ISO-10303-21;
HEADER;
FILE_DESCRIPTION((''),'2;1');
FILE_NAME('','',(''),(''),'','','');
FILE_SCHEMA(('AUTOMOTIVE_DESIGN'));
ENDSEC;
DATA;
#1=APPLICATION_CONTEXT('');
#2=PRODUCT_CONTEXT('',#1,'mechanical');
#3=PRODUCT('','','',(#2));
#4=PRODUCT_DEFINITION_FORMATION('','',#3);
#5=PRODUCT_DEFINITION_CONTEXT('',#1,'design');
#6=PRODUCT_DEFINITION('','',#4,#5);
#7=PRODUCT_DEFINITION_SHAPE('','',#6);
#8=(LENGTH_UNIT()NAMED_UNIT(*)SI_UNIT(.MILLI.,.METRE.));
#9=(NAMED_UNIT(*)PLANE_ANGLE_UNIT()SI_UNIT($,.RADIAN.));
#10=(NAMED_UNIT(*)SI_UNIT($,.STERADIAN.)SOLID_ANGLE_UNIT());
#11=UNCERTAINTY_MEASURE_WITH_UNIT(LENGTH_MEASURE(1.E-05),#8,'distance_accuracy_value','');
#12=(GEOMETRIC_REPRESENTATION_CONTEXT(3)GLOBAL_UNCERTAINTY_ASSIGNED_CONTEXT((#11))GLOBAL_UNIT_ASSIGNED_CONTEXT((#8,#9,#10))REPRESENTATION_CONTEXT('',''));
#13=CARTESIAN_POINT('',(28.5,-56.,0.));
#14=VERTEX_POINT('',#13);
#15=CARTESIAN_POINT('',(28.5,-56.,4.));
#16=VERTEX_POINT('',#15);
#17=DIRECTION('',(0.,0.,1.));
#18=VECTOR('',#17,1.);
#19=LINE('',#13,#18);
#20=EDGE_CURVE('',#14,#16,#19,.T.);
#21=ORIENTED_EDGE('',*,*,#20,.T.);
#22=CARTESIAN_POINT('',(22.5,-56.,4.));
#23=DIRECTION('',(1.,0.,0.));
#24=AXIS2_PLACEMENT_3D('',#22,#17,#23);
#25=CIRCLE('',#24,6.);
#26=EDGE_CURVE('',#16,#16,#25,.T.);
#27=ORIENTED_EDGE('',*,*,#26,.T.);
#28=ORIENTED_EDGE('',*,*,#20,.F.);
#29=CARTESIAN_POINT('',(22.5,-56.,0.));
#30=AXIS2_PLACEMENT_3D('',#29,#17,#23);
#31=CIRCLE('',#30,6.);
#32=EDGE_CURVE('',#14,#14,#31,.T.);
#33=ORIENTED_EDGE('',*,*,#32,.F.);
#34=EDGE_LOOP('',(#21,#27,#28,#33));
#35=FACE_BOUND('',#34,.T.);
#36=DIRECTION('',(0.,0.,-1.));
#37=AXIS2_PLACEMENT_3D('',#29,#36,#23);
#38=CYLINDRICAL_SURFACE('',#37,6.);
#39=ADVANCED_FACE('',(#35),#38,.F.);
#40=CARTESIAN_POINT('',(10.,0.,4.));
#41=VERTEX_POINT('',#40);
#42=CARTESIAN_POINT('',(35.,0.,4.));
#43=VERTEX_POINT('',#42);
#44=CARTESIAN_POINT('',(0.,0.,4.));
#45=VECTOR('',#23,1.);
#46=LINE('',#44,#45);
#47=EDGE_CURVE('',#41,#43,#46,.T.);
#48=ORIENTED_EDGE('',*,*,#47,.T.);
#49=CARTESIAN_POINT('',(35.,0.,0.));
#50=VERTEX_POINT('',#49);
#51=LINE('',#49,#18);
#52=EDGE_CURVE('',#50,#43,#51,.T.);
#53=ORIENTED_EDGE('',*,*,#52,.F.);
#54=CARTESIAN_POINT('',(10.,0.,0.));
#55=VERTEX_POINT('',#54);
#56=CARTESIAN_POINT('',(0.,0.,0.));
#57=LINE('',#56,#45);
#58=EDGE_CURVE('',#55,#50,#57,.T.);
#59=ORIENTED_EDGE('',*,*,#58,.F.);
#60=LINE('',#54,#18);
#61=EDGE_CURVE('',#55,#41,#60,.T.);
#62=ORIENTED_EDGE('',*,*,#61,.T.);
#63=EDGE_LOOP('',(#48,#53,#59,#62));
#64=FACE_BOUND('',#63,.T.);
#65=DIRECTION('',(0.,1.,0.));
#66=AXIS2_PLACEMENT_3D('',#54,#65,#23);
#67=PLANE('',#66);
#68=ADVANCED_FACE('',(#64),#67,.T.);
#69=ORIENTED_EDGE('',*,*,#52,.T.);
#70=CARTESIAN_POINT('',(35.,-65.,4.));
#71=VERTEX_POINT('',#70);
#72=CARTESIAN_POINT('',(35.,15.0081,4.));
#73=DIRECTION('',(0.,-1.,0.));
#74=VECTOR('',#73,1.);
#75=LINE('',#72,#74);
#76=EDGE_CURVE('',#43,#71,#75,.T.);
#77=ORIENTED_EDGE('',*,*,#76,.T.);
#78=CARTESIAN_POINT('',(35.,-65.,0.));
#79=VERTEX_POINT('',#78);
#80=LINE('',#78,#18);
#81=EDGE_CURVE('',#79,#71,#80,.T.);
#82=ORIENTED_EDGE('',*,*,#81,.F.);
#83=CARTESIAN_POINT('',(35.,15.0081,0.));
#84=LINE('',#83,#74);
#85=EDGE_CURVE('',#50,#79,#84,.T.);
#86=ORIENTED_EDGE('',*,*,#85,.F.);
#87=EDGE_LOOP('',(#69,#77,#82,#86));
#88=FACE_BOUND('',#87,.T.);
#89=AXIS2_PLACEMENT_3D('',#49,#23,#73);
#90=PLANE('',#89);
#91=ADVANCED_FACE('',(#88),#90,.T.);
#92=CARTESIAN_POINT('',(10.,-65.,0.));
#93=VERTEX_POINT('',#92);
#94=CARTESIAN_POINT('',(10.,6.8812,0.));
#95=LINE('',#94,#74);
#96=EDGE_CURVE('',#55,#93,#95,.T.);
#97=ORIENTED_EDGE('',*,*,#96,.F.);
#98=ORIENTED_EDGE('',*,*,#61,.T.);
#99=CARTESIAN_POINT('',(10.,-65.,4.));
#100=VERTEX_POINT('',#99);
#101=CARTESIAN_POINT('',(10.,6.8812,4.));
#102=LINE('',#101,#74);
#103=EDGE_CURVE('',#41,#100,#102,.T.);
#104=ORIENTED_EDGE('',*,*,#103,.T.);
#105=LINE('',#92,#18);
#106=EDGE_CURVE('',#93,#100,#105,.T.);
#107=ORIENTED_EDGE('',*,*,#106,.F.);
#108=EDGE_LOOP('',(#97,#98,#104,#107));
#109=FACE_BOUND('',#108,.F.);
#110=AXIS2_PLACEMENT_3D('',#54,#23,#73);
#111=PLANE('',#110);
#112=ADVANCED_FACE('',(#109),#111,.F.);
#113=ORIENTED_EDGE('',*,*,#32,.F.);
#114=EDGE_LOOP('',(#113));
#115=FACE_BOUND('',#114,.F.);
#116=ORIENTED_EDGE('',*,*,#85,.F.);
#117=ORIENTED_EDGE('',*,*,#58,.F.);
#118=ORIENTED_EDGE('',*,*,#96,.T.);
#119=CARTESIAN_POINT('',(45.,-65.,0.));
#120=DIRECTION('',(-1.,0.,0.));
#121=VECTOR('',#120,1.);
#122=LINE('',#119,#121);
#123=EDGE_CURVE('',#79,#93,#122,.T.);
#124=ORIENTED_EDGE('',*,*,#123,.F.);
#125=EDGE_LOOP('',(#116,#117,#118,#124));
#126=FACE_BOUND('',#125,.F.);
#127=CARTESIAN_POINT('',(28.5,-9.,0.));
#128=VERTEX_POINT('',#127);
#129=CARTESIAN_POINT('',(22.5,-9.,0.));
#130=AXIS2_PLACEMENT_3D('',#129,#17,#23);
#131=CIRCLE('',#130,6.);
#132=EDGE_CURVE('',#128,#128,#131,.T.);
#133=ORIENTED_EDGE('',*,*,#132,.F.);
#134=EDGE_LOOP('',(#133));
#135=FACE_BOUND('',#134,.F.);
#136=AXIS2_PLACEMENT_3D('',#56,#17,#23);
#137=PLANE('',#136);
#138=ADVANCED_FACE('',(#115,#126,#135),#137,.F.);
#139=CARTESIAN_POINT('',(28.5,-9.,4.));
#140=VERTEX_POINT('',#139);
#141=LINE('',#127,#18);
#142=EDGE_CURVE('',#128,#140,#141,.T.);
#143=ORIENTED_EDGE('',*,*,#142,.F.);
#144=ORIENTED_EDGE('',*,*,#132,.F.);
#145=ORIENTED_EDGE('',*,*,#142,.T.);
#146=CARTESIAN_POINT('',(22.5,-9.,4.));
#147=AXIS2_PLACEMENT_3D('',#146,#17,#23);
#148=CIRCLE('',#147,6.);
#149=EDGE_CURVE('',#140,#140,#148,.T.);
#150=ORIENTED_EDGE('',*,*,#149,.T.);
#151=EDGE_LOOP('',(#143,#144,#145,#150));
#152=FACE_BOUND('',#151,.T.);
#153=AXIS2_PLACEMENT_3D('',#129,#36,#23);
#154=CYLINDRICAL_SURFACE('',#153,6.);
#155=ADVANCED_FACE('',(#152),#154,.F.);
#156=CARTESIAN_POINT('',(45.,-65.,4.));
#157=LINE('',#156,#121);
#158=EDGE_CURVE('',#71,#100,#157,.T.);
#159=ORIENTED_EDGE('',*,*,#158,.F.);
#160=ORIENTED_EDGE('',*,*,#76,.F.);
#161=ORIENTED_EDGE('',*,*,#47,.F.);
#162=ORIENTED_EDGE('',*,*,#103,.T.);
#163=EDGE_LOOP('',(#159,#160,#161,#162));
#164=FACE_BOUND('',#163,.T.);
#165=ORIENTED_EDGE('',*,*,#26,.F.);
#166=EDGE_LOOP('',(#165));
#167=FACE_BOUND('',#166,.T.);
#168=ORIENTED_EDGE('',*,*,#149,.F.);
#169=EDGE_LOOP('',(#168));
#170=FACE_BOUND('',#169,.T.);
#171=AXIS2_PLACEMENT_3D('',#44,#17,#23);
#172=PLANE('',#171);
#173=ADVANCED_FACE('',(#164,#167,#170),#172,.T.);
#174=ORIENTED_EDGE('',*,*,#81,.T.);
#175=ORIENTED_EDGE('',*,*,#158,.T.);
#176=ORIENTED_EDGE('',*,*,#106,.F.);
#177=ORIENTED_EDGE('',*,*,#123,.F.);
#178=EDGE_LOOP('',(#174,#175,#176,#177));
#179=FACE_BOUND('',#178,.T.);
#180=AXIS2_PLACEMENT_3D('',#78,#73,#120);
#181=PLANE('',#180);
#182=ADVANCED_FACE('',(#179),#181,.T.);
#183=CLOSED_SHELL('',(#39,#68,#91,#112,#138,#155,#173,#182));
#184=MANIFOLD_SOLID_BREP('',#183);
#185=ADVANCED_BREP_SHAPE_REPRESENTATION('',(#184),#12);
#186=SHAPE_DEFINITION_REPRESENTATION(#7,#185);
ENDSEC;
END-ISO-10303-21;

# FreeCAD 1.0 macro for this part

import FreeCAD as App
import Part
import Sketcher
Q = App.Units.Quantity

doc = App.newDocument("Part")
params = doc.addObject("Spreadsheet::Sheet", "Params")
for row, (alias, value) in enumerate([
    ("sketch1_diameter", "12 mm"),
    ("sketch1_height", "65 mm"),
    ("sketch1_width", "25 mm"),
    ("pad1_length", "4 mm"),
], start=1):
    params.set(f"A{row}", alias)
    params.set(f"B{row}", "=" + value)
    params.setAlias(f"B{row}", alias)

body = doc.addObject("PartDesign::Body", "Body")

# Sketch on XY plane
sketch1 = body.newObject("Sketcher::SketchObject", "Sketch")
sketch1.AttachmentSupport = (doc.getObject("XY_Plane"), [""])
sketch1.MapMode = "FlatFace"
sketch1.addGeometry(Part.LineSegment(App.Vector(35, 0, 0), App.Vector(10, 0, 0)), False)
sketch1.addGeometry(Part.LineSegment(App.Vector(10, 0, 0), App.Vector(10, -65, 0)), False)
sketch1.addGeometry(Part.LineSegment(App.Vector(10, -65, 0), App.Vector(35, -65, 0)), False)
sketch1.addGeometry(Part.LineSegment(App.Vector(35, -65, 0), App.Vector(35, 0, 0)), False)
sketch1.addGeometry(Part.Circle(App.Vector(22.5, -56, 0), App.Vector(0, 0, 1), 6), False)
sketch1.addGeometry(Part.Circle(App.Vector(22.5, -9, 0), App.Vector(0, 0, 1), 6), False)
sketch1.addConstraint(Sketcher.Constraint("Coincident", 0, 2, 1, 1))
sketch1.addConstraint(Sketcher.Constraint("Coincident", 1, 2, 2, 1))
sketch1.addConstraint(Sketcher.Constraint("Coincident", 2, 2, 3, 1))
sketch1.addConstraint(Sketcher.Constraint("Coincident", 3, 2, 0, 1))
sketch1.addConstraint(Sketcher.Constraint("Horizontal", 0))
sketch1.addConstraint(Sketcher.Constraint("Vertical", 1))
sketch1.addConstraint(Sketcher.Constraint("Horizontal", 2))
sketch1.addConstraint(Sketcher.Constraint("Vertical", 3))
sketch1.addConstraint(Sketcher.Constraint("Equal", 4, 5))
sketch1.addConstraint(Sketcher.Constraint("PointOnObject", 0, 2, -1))
sketch1.addConstraint(Sketcher.Constraint("Vertical", 4, 3, 5, 3))
sketch1.addConstraint(Sketcher.Constraint("Diameter", 4, Q("12 mm")))
sketch1.addConstraint(Sketcher.Constraint("DistanceY", 1, 2, 1, 1, Q("65 mm")))
sketch1.addConstraint(Sketcher.Constraint("DistanceY", 5, 3, -1, 1, Q("9 mm")))
sketch1.addConstraint(Sketcher.Constraint("DistanceX", -1, 1, 0, 2, Q("10 mm")))
sketch1.addConstraint(Sketcher.Constraint("DistanceY", 1, 2, 4, 3, Q("9 mm")))
sketch1.addConstraint(Sketcher.Constraint("DistanceX", -1, 1, 4, 3, Q("22.5 mm")))
sketch1.addConstraint(Sketcher.Constraint("DistanceX", 0, 2, 0, 1, Q("25 mm")))
sketch1.setExpression("Constraints[11]", "Params.sketch1_diameter")
sketch1.setExpression("Constraints[12]", "Params.sketch1_height")
sketch1.setExpression("Constraints[17]", "Params.sketch1_width")
pad1 = body.newObject("PartDesign::Pad", "Pad")
pad1.Profile = sketch1
pad1.setExpression("Length", "Params.pad1_length")

doc.recompute()
